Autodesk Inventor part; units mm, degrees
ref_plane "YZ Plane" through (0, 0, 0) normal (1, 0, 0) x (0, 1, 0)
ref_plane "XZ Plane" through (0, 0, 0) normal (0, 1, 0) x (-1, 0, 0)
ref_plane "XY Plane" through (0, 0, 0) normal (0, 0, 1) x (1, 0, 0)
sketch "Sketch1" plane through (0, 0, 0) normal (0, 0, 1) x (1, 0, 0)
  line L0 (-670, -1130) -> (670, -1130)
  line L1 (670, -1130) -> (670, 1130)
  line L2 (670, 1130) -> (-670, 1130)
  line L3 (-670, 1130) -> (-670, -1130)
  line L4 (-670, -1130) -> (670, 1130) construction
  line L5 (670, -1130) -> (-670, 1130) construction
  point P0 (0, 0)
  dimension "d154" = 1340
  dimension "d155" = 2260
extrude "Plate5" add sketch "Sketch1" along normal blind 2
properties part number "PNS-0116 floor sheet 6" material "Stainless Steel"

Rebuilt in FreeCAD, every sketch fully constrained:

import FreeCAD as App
import Part
import Sketcher
Q = App.Units.Quantity

doc = App.newDocument("Part")
params = doc.addObject("Spreadsheet::Sheet", "Params")
for row, (alias, value) in enumerate([
    ("sketch1_width", "1340 mm"),
    ("sketch1_height", "2260 mm"),
    ("pad1_length", "2 mm"),
], start=1):
    params.set(f"A{row}", alias)
    params.set(f"B{row}", "=" + value)
    params.setAlias(f"B{row}", alias)

body = doc.addObject("PartDesign::Body", "Body")

# Sketch on XY plane
sketch1 = body.newObject("Sketcher::SketchObject", "Sketch")
sketch1.AttachmentSupport = (doc.getObject("XY_Plane"), [""])
sketch1.MapMode = "FlatFace"
sketch1.addGeometry(Part.LineSegment(App.Vector(-670, 1130, 0), App.Vector(-670, -1130, 0)), False)
sketch1.addGeometry(Part.LineSegment(App.Vector(-670, -1130, 0), App.Vector(670, -1130, 0)), False)
sketch1.addGeometry(Part.LineSegment(App.Vector(670, -1130, 0), App.Vector(670, 1130, 0)), False)
sketch1.addGeometry(Part.LineSegment(App.Vector(670, 1130, 0), App.Vector(-670, 1130, 0)), False)
sketch1.addConstraint(Sketcher.Constraint("Coincident", 0, 2, 1, 1))
sketch1.addConstraint(Sketcher.Constraint("Coincident", 1, 2, 2, 1))
sketch1.addConstraint(Sketcher.Constraint("Coincident", 2, 2, 3, 1))
sketch1.addConstraint(Sketcher.Constraint("Coincident", 3, 2, 0, 1))
sketch1.addConstraint(Sketcher.Constraint("Vertical", 0))
sketch1.addConstraint(Sketcher.Constraint("Horizontal", 1))
sketch1.addConstraint(Sketcher.Constraint("Vertical", 2))
sketch1.addConstraint(Sketcher.Constraint("Horizontal", 3))
sketch1.addConstraint(Sketcher.Constraint("Symmetric", 0, 2, 2, 2, -1, 1))
sketch1.addConstraint(Sketcher.Constraint("DistanceX", 1, 1, 1, 2, Q("1340 mm")))
sketch1.addConstraint(Sketcher.Constraint("DistanceY", 0, 2, 0, 1, Q("2260 mm")))
sketch1.setExpression("Constraints[9]", "Params.sketch1_width")
sketch1.setExpression("Constraints[10]", "Params.sketch1_height")
pad1 = body.newObject("PartDesign::Pad", "Pad")
pad1.Profile = sketch1
pad1.setExpression("Length", "Params.pad1_length")

doc.recompute()
